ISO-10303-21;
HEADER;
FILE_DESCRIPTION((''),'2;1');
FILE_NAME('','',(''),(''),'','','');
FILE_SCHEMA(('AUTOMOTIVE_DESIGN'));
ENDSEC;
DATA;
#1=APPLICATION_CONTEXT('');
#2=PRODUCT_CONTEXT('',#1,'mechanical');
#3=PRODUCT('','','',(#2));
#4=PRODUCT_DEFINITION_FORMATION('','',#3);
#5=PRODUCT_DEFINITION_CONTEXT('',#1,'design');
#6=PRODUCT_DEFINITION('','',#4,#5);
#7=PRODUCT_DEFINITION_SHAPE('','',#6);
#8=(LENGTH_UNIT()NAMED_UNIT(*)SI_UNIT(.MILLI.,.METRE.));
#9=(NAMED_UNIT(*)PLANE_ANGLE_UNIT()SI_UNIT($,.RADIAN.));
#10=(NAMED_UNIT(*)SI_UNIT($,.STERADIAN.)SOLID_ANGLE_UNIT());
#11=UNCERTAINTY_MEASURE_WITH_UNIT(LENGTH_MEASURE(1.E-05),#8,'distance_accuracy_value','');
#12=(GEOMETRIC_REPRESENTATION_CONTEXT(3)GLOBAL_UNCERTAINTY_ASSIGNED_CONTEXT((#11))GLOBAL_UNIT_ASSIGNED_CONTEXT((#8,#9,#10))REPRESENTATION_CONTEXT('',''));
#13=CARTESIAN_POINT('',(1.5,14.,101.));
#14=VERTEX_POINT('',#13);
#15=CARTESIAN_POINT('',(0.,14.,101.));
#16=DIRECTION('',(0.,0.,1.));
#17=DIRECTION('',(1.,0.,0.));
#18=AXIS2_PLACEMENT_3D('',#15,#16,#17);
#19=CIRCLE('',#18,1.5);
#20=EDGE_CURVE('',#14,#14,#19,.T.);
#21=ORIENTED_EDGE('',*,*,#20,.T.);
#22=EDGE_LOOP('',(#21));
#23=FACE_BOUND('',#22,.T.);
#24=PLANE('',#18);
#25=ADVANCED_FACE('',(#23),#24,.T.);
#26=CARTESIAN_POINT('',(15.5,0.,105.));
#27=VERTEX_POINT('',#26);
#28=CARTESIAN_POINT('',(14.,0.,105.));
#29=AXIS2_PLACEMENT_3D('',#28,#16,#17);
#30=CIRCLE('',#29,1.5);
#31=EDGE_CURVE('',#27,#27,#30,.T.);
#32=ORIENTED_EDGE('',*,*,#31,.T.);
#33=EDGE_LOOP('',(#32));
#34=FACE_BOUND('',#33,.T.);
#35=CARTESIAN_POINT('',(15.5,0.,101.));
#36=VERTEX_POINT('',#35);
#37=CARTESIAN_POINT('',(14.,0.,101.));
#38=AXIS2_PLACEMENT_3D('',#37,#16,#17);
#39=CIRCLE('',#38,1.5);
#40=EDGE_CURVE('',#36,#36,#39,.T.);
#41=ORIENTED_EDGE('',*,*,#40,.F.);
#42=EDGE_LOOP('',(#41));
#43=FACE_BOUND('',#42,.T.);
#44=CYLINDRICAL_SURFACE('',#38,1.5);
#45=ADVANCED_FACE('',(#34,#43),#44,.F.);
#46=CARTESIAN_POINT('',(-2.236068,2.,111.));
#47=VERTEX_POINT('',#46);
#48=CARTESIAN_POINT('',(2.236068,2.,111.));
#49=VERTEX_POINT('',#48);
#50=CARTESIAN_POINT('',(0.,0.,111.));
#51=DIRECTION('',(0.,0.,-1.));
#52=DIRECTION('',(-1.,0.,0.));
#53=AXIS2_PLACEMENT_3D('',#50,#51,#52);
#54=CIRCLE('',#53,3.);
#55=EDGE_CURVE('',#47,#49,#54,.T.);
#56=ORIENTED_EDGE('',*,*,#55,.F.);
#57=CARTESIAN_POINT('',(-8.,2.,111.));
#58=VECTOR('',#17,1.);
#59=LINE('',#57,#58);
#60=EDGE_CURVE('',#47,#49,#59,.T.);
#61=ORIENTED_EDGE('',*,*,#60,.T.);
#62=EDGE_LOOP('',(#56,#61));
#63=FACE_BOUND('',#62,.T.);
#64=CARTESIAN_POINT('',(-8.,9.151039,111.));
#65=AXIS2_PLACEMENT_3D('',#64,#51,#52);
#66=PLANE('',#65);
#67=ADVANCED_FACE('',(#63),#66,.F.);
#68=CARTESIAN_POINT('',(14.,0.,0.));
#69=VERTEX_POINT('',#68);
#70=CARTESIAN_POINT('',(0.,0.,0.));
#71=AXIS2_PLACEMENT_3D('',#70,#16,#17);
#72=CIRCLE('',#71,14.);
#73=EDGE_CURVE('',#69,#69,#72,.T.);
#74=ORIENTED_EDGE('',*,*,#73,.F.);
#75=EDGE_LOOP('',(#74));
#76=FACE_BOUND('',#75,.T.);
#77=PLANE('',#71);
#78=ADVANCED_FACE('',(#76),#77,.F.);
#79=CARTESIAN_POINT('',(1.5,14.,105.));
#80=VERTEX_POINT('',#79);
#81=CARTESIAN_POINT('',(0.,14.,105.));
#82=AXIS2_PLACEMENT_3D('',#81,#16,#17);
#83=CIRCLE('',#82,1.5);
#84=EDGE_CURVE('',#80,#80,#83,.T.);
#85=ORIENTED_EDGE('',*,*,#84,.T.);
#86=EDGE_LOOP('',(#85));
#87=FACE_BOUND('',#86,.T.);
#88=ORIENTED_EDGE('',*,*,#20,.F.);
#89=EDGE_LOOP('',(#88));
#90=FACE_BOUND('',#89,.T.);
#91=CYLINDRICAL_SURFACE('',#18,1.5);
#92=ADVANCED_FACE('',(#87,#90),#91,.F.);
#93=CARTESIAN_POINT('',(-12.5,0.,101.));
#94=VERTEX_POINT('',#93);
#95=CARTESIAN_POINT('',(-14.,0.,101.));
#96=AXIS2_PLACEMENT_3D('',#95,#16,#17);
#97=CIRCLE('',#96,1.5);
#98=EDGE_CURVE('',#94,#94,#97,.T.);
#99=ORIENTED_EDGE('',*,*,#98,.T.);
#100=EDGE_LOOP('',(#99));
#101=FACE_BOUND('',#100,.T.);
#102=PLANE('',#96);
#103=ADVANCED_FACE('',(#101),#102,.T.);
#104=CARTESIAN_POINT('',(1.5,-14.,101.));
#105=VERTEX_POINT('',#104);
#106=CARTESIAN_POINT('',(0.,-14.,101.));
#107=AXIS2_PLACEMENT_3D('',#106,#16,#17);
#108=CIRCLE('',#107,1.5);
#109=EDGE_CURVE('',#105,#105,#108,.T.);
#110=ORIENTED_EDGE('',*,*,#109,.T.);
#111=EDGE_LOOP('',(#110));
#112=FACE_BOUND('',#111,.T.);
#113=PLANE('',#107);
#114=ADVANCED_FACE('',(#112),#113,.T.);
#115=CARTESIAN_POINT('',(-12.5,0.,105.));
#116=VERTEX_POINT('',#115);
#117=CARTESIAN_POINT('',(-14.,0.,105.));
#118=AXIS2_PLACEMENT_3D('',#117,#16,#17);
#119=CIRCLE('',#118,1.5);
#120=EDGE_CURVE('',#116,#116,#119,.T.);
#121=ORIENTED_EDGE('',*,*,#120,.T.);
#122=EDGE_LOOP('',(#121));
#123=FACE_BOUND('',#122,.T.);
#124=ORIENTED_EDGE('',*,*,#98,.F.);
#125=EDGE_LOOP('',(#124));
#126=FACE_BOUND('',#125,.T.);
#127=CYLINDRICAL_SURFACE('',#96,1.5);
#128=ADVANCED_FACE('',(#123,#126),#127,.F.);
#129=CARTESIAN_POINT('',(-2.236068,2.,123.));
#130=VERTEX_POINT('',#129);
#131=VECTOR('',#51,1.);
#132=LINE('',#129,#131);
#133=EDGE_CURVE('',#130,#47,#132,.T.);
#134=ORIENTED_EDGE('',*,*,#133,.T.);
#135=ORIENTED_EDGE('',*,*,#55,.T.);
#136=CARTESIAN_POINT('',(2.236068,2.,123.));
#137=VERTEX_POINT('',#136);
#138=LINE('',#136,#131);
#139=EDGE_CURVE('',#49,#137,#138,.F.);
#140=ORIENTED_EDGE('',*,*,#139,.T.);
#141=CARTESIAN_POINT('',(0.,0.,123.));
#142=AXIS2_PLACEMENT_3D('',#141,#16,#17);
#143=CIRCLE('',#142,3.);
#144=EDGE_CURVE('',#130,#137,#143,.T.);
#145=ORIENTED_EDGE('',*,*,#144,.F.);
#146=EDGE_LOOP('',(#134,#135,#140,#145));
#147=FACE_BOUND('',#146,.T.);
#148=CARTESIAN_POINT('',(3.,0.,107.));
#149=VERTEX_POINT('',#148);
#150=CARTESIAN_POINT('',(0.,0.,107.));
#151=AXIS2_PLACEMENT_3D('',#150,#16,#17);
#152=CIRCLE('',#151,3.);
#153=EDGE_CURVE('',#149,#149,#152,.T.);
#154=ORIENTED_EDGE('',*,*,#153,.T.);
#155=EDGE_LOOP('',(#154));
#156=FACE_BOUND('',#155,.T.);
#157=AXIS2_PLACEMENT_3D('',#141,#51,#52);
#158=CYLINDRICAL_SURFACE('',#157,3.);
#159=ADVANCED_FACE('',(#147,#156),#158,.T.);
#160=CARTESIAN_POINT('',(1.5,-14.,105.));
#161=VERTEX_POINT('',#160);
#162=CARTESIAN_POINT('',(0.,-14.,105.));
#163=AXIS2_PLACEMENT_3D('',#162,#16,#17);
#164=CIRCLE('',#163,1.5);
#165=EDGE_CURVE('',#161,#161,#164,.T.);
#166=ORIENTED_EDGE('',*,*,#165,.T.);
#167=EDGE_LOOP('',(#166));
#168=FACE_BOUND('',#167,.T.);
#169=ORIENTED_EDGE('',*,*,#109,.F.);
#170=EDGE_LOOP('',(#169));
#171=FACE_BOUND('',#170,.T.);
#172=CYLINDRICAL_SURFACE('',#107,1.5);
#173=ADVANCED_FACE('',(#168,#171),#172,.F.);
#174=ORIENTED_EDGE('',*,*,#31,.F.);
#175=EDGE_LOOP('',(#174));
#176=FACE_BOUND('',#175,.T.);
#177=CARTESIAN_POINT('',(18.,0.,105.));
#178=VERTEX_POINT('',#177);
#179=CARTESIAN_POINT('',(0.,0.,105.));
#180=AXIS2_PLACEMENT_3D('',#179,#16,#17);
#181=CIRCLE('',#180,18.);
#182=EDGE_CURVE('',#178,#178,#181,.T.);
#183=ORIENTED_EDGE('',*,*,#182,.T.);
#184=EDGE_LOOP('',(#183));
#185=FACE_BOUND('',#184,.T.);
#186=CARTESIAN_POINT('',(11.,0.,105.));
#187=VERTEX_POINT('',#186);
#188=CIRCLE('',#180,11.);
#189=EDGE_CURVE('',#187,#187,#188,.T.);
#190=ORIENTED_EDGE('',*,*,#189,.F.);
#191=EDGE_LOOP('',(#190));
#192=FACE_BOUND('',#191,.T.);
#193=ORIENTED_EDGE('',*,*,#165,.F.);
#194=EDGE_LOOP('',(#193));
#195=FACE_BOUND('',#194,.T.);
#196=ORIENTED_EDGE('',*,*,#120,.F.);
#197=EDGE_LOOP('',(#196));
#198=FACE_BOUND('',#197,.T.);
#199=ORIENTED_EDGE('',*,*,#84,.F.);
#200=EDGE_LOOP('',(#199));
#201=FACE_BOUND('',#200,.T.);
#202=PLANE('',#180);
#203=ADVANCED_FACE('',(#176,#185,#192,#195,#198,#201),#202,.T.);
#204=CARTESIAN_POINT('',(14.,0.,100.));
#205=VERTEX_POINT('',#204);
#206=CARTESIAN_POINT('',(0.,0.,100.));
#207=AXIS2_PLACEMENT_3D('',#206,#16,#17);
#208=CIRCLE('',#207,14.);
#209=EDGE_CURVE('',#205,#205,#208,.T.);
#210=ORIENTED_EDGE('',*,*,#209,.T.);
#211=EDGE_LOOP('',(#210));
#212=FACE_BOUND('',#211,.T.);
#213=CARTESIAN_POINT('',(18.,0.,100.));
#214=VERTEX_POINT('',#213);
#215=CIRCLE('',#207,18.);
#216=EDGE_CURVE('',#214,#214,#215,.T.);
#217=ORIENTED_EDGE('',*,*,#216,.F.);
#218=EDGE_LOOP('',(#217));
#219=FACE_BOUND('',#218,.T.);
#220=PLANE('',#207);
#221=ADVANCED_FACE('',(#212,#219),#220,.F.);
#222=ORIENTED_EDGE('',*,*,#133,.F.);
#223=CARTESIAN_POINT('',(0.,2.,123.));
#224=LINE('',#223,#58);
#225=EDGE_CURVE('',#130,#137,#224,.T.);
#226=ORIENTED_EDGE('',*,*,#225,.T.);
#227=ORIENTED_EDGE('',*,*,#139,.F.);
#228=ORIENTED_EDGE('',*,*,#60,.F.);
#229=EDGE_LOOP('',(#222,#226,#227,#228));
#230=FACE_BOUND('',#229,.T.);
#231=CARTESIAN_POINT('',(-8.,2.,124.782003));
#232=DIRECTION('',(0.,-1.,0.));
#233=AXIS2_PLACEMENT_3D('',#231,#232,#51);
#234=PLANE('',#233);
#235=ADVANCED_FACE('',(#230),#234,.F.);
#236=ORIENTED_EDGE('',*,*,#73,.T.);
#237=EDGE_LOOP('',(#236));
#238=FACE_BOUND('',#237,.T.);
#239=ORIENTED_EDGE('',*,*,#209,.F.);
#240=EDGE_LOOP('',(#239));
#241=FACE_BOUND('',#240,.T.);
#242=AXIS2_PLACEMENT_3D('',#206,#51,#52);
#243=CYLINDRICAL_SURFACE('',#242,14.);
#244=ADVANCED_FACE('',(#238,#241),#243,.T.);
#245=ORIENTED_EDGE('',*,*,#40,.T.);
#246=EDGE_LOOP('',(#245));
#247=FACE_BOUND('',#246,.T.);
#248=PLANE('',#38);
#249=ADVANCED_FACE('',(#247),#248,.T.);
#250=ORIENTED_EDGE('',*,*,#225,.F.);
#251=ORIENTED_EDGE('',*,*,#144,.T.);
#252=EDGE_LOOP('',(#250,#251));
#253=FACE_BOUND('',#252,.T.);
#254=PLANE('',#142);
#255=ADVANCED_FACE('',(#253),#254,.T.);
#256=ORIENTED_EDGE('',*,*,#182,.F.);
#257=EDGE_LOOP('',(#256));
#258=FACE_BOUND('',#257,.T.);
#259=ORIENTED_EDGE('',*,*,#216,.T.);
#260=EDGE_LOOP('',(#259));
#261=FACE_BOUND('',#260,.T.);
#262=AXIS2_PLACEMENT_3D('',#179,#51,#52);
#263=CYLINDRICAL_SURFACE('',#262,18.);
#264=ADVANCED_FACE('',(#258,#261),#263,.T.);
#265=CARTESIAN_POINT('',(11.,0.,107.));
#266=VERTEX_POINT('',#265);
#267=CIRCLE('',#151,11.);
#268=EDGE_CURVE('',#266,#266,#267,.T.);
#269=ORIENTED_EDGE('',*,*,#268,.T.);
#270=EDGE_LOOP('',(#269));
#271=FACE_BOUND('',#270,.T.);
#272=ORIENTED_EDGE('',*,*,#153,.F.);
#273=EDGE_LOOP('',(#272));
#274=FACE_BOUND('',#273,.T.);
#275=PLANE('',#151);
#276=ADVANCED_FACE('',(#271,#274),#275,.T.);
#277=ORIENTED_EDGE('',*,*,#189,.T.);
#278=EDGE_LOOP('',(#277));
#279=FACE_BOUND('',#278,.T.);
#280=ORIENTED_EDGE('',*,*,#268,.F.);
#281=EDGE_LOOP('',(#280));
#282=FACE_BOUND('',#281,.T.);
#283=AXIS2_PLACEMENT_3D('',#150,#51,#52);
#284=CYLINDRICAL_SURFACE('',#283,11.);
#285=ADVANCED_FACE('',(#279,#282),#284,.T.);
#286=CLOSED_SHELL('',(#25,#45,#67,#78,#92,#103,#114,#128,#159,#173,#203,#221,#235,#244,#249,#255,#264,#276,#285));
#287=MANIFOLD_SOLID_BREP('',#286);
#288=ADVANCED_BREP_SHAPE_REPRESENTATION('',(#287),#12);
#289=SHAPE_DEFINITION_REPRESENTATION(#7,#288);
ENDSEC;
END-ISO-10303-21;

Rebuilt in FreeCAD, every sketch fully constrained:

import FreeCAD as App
import Part
import Sketcher
from FreeCAD import Vector
Q = App.Units.Quantity

doc = App.newDocument("Part")
params = doc.addObject("Spreadsheet::Sheet", "Params")
for row, (alias, value) in enumerate([
    ("sketch1_diameter", "28 mm"),
    ("pad1_length", "100 mm"),
    ("sketch2_diameter", "36 mm"),
    ("pad2_length", "5 mm"),
    ("sketch3_diameter", "3 mm"),
    ("pocket1_length", "4 mm"),
    ("sketch4_diameter", "22 mm"),
    ("pad3_length", "2 mm"),
    ("sketch5_diameter", "6 mm"),
    ("pad4_length", "16 mm"),
    ("pocket2_length", "16 mm"),
], start=1):
    params.set(f"A{row}", alias)
    params.set(f"B{row}", "=" + value)
    params.setAlias(f"B{row}", alias)

body = doc.addObject("PartDesign::Body", "Body")

# Sketch on XY plane
sketch1 = body.newObject("Sketcher::SketchObject", "Sketch")
sketch1.AttachmentSupport = (doc.getObject("XY_Plane"), [""])
sketch1.MapMode = "FlatFace"
sketch1.addGeometry(Part.Circle(Vector(0, 0, 0), Vector(0, 0, 1), 14), False)
sketch1.addConstraint([
    Sketcher.Constraint("Coincident", 0, 3, -1, 1),
    Sketcher.Constraint("Diameter", 0, Q("28 mm")),
])
sketch1.setExpression("Constraints[1]", "Params.sketch1_diameter")
pad1 = body.newObject("PartDesign::Pad", "Pad")
pad1.Profile = sketch1
pad1.setExpression("Length", "Params.pad1_length")

# Sketch on XY plane
sketch2 = body.newObject("Sketcher::SketchObject", "Sketch001")
sketch2.AttachmentSupport = (doc.getObject("XY_Plane"), [""])
sketch2.MapMode = "FlatFace"
sketch2.AttachmentOffset = App.Placement(Vector(0, 0, 100), App.Rotation())
sketch2.addGeometry(Part.Circle(Vector(0, 0, 0), Vector(0, 0, 1), 18), False)
sketch2.addConstraint([
    Sketcher.Constraint("Coincident", 0, 3, -1, 1),
    Sketcher.Constraint("Diameter", 0, Q("36 mm")),
])
sketch2.setExpression("Constraints[1]", "Params.sketch2_diameter")
pad2 = body.newObject("PartDesign::Pad", "Pad001")
pad2.Profile = sketch2
pad2.setExpression("Length", "Params.pad2_length")

# Sketch on XY plane
sketch3 = body.newObject("Sketcher::SketchObject", "Sketch002")
sketch3.AttachmentSupport = (doc.getObject("XY_Plane"), [""])
sketch3.MapMode = "FlatFace"
sketch3.AttachmentOffset = App.Placement(Vector(0, 0, 105), App.Rotation())
sketch3.addGeometry([
    Part.Circle(Vector(0, 14, 0), Vector(0, 0, 1), 1.5),
    Part.Circle(Vector(14, 0, 0), Vector(0, 0, 1), 1.5),
    Part.Circle(Vector(0, -14, 0), Vector(0, 0, 1), 1.5),
    Part.Circle(Vector(-14, 0, 0), Vector(0, 0, 1), 1.5),
], False)
sketch3.addConstraint([
    Sketcher.Constraint("Equal", 0, 1),
    Sketcher.Constraint("Equal", 1, 2),
    Sketcher.Constraint("Equal", 2, 3),
    Sketcher.Constraint("Symmetric", 0, 3, 2, 3, -1, 1),
    Sketcher.Constraint("Symmetric", 1, 3, 3, 3, -1, 1),
    Sketcher.Constraint("PointOnObject", 0, 3, -2),
    Sketcher.Constraint("PointOnObject", 1, 3, -1),
    Sketcher.Constraint("Diameter", 0, Q("3 mm")),
    Sketcher.Constraint("DistanceY", -1, 1, 0, 3, Q("14 mm")),
    Sketcher.Constraint("DistanceX", -1, 1, 1, 3, Q("14 mm")),
])
sketch3.setExpression("Constraints[7]", "Params.sketch3_diameter")
pocket1 = body.newObject("PartDesign::Pocket", "Pocket")
pocket1.Profile = sketch3
pocket1.setExpression("Length", "Params.pocket1_length")

# Sketch on XY plane
sketch4 = body.newObject("Sketcher::SketchObject", "Sketch003")
sketch4.AttachmentSupport = (doc.getObject("XY_Plane"), [""])
sketch4.MapMode = "FlatFace"
sketch4.AttachmentOffset = App.Placement(Vector(0, 0, 105), App.Rotation())
sketch4.addGeometry(Part.Circle(Vector(0, 0, 0), Vector(0, 0, 1), 11), False)
sketch4.addConstraint([
    Sketcher.Constraint("Coincident", 0, 3, -1, 1),
    Sketcher.Constraint("Diameter", 0, Q("22 mm")),
])
sketch4.setExpression("Constraints[1]", "Params.sketch4_diameter")
pad3 = body.newObject("PartDesign::Pad", "Pad002")
pad3.Profile = sketch4
pad3.setExpression("Length", "Params.pad3_length")

# Sketch on XY plane
sketch5 = body.newObject("Sketcher::SketchObject", "Sketch004")
sketch5.AttachmentSupport = (doc.getObject("XY_Plane"), [""])
sketch5.MapMode = "FlatFace"
sketch5.AttachmentOffset = App.Placement(Vector(0, 0, 107), App.Rotation())
sketch5.addGeometry(Part.Circle(Vector(0, 0, 0), Vector(0, 0, 1), 3), False)
sketch5.addConstraint([
    Sketcher.Constraint("Coincident", 0, 3, -1, 1),
    Sketcher.Constraint("Diameter", 0, Q("6 mm")),
])
sketch5.setExpression("Constraints[1]", "Params.sketch5_diameter")
pad4 = body.newObject("PartDesign::Pad", "Pad003")
pad4.Profile = sketch5
pad4.setExpression("Length", "Params.pad4_length")

# Sketch on YZ plane
sketch6 = body.newObject("Sketcher::SketchObject", "Sketch005")
sketch6.AttachmentSupport = (doc.getObject("YZ_Plane"), [""])
sketch6.MapMode = "FlatFace"
sketch6.addGeometry([
    Part.LineSegment(Vector(9, 125, 0), Vector(2, 125, 0)),
    Part.LineSegment(Vector(2, 125, 0), Vector(2, 111, 0)),
    Part.LineSegment(Vector(2, 111, 0), Vector(9, 111, 0)),
    Part.LineSegment(Vector(9, 111, 0), Vector(9, 125, 0)),
], False)
sketch6.addConstraint([
    Sketcher.Constraint("Coincident", 0, 2, 1, 1),
    Sketcher.Constraint("Coincident", 1, 2, 2, 1),
    Sketcher.Constraint("Coincident", 2, 2, 3, 1),
    Sketcher.Constraint("Coincident", 3, 2, 0, 1),
    Sketcher.Constraint("Horizontal", 0),
    Sketcher.Constraint("Vertical", 1),
    Sketcher.Constraint("Horizontal", 2),
    Sketcher.Constraint("Vertical", 3),
    Sketcher.Constraint("DistanceX", -1, 1, 0, 2, Q("2 mm")),
    Sketcher.Constraint("DistanceY", -1, 1, 1, 2, Q("111 mm")),
    Sketcher.Constraint("DistanceX", 0, 2, 0, 1, Q("7.151039 mm")),
    Sketcher.Constraint("DistanceY", 1, 2, 1, 1, Q("13.782003 mm")),
])
pocket2 = body.newObject("PartDesign::Pocket", "Pocket001")
pocket2.Profile = sketch6
pocket2.setExpression("Length", "Params.pocket2_length")
pocket2.Midplane = True

doc.recompute()
